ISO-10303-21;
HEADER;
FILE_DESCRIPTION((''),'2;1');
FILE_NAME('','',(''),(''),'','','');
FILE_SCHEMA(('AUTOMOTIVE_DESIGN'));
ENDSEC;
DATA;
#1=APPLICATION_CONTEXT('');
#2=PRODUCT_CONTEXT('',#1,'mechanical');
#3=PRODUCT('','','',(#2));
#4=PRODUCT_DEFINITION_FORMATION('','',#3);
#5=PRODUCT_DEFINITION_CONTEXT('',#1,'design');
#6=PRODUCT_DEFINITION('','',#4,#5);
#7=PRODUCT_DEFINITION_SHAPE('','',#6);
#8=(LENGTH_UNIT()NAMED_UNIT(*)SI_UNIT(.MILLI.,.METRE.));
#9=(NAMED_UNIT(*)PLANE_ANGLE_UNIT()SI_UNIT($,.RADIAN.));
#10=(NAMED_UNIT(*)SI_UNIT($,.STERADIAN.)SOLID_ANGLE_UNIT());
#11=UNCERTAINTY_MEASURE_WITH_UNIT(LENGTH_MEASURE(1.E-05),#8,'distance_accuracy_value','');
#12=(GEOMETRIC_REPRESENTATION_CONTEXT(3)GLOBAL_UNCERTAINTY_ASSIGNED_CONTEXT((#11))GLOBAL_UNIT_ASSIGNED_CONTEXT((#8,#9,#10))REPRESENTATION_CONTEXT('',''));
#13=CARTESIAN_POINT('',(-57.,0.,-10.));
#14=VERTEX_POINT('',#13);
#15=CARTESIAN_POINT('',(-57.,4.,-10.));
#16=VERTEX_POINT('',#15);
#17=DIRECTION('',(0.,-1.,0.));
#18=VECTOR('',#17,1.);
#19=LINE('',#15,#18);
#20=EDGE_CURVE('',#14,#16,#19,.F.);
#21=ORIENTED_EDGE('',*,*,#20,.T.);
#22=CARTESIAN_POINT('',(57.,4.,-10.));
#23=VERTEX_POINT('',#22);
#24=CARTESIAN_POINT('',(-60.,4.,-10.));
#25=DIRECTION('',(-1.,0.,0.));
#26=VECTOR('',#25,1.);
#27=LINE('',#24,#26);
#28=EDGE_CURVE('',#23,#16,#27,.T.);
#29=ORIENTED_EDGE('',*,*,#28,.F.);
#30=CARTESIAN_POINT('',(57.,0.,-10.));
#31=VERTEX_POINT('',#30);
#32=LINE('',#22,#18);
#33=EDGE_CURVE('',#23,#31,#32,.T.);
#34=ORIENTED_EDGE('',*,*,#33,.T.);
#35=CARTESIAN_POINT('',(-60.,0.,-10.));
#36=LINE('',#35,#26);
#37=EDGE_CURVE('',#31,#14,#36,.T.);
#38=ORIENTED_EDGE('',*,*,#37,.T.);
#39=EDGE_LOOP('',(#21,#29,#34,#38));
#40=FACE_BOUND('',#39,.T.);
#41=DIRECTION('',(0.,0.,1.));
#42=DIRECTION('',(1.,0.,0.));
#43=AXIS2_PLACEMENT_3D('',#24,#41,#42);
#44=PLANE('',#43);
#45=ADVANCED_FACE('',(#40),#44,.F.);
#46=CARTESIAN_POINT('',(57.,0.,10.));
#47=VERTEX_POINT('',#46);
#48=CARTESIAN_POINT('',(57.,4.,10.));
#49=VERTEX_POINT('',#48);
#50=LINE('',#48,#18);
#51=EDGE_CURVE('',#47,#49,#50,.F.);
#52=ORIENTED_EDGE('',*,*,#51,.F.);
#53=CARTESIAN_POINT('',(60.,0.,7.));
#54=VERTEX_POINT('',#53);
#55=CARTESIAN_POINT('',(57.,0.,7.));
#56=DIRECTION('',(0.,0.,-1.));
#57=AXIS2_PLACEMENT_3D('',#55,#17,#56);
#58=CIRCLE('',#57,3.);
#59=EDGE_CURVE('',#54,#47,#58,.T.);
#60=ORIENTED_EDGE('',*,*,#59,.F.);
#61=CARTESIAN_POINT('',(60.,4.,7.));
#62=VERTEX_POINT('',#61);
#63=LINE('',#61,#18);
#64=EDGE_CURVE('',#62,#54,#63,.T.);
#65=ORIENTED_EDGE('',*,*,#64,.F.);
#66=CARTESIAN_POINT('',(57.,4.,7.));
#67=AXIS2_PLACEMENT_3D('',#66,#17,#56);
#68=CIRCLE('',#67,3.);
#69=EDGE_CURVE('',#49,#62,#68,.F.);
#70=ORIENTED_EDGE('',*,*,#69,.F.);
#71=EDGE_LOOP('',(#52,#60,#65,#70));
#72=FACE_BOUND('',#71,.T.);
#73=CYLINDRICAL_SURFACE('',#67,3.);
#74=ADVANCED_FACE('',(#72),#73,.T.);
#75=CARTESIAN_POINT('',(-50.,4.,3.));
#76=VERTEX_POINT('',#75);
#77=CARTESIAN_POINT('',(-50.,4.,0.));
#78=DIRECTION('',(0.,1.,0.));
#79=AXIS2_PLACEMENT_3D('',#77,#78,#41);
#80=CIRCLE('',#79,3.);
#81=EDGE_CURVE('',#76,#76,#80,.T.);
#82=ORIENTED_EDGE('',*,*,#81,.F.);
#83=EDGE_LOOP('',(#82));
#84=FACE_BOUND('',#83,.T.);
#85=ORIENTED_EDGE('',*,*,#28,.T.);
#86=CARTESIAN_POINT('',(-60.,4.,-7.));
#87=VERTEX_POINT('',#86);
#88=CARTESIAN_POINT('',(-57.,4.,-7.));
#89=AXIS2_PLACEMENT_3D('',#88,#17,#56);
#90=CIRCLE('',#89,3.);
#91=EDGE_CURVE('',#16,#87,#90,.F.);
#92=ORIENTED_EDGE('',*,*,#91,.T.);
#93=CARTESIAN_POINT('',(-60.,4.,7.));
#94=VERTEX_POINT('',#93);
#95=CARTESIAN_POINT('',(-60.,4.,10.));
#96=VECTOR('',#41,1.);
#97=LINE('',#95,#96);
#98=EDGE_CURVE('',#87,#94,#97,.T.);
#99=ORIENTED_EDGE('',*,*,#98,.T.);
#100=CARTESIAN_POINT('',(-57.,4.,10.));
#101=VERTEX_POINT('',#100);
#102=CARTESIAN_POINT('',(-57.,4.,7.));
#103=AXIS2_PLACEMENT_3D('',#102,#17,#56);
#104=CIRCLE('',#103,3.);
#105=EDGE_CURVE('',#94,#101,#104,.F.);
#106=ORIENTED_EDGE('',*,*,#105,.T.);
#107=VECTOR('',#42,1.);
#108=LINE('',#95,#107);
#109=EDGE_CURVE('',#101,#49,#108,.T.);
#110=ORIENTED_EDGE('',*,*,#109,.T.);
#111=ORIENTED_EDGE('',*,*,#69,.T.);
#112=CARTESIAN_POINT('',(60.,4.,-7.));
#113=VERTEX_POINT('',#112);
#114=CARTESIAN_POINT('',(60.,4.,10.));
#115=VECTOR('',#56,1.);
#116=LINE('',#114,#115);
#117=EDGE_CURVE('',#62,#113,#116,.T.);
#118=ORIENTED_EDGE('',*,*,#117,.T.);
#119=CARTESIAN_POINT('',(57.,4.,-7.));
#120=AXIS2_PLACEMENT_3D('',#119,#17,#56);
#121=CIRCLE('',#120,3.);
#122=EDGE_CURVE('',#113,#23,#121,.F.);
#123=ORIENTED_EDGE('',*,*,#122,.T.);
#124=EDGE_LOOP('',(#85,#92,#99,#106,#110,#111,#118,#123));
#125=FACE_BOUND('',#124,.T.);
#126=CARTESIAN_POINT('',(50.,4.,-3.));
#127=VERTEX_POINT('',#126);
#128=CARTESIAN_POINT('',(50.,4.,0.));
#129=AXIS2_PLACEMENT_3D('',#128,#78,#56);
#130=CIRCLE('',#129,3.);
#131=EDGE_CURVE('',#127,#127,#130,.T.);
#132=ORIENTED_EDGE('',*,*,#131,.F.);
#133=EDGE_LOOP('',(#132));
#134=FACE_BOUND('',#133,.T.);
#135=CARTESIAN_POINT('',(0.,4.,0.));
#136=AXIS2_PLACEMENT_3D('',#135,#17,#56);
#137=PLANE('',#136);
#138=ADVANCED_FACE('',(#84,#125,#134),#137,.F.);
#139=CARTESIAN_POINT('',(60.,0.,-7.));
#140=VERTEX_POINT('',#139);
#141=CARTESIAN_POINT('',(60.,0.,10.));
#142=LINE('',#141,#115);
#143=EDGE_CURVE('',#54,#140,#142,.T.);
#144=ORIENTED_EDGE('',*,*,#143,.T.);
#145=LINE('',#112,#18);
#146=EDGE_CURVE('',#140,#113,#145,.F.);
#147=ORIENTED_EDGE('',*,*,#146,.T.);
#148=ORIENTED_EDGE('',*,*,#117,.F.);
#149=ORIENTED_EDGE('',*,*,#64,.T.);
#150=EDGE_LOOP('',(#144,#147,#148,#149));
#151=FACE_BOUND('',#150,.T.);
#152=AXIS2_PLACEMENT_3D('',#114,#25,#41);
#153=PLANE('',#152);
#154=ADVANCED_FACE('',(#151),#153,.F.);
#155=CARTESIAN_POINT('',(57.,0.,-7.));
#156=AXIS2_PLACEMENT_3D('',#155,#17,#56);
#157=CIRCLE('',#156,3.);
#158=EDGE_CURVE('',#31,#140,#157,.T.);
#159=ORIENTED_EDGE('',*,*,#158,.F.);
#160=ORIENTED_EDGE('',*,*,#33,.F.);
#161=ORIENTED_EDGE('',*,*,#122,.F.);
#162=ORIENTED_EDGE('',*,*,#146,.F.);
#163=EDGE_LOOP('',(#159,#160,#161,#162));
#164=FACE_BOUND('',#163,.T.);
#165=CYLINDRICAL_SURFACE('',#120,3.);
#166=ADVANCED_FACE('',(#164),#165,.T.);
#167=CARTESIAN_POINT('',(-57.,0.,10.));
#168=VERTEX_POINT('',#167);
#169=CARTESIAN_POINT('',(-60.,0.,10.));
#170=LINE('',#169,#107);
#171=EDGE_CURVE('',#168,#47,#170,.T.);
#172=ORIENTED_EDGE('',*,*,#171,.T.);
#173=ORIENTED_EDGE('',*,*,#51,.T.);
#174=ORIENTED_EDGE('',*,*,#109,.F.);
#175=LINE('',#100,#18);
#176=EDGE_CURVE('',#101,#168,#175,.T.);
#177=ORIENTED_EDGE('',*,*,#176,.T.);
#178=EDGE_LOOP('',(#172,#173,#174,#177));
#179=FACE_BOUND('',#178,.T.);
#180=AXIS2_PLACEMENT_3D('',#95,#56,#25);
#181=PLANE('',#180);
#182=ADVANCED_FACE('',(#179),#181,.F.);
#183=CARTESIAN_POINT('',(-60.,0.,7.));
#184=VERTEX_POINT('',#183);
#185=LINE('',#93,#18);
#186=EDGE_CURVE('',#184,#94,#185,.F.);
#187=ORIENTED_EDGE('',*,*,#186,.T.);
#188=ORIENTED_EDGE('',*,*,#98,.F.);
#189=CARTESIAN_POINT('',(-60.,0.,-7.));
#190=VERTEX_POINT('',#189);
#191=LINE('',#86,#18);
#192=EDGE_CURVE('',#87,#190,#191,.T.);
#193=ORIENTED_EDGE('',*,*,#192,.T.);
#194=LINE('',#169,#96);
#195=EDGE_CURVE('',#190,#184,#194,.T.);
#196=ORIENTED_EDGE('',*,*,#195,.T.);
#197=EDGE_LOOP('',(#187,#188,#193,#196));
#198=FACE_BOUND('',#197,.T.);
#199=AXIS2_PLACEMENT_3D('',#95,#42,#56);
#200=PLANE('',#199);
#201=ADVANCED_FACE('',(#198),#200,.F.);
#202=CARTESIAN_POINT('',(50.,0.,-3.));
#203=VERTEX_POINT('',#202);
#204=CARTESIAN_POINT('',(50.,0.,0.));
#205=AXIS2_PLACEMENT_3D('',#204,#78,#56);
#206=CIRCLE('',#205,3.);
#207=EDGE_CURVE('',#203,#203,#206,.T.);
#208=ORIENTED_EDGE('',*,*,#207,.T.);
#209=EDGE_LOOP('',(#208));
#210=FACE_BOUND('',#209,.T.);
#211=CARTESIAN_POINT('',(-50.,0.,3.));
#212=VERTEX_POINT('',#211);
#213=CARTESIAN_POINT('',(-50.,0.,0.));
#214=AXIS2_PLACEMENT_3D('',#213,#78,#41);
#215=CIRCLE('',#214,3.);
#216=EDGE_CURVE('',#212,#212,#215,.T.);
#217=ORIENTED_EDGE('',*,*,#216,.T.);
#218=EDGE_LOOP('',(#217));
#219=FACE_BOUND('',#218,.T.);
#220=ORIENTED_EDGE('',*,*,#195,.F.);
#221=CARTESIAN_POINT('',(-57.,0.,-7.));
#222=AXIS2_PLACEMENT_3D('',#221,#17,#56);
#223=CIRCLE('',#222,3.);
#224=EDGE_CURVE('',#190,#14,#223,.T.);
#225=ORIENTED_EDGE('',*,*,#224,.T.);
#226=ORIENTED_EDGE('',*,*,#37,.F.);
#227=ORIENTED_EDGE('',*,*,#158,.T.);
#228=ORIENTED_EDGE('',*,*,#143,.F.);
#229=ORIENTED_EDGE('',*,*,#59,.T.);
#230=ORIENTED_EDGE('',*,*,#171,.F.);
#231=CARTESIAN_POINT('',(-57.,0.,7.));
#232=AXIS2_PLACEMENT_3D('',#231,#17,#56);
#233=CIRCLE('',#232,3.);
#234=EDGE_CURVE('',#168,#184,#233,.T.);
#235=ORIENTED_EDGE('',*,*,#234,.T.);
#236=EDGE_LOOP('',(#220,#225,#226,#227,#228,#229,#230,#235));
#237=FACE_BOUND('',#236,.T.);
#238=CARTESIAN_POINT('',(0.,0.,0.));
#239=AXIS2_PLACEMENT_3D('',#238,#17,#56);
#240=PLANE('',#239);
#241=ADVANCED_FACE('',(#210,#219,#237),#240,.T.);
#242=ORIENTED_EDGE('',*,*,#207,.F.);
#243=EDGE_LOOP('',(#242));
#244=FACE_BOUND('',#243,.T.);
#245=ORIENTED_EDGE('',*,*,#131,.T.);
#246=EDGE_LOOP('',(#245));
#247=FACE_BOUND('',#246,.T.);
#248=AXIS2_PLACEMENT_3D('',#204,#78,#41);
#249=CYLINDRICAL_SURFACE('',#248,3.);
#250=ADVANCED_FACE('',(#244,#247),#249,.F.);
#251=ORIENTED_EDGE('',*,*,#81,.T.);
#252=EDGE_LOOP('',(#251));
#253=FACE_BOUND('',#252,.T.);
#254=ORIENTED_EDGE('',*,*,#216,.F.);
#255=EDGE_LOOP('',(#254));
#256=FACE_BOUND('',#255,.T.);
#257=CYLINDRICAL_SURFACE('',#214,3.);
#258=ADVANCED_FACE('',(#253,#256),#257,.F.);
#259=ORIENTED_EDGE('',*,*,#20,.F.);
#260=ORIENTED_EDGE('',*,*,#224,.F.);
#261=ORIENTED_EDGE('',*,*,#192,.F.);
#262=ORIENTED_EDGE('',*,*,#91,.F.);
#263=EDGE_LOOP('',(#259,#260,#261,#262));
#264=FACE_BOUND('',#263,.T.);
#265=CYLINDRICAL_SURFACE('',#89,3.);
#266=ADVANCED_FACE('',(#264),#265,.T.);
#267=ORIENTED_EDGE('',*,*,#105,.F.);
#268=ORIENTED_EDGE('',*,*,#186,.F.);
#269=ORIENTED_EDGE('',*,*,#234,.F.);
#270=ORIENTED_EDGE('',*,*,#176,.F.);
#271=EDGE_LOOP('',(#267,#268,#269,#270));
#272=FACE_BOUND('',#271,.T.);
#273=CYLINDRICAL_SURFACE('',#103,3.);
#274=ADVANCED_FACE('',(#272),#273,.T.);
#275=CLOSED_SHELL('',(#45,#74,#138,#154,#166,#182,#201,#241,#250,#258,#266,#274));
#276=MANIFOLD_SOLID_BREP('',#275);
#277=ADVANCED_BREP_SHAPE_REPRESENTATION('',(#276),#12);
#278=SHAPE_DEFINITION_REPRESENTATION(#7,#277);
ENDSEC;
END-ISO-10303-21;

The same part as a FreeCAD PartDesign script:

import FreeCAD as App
import Part
import Sketcher

V = App.Vector
Q = App.Units.Quantity


def edges_at(feature, points):
    """Names of the edges that pass closest to the given points."""
    edges = feature.Shape.Edges
    near = lambda p: min(range(len(edges)), key=lambda i: edges[i].distToShape(Part.Vertex(*p))[0])
    return sorted({f"Edge{near(p) + 1}" for p in points})


def add_polygon(sketch, points):
    """Adds a closed chain of lines whose ends are joined by coincident constraints."""
    first, n = sketch.GeometryCount, len(points)
    for a, b in zip(points, points[1:] + points[:1]):
        sketch.addGeometry(Part.LineSegment(App.Vector(*a, 0), App.Vector(*b, 0)), False)
    for i in range(n):
        sketch.addConstraint(Sketcher.Constraint("Coincident", first + i, 2, first + (i + 1) % n, 1))

doc = App.newDocument("Part")
params = doc.addObject("Spreadsheet::Sheet", "Params")
for row, (alias, value) in enumerate([
    ("sketch1_width", "120 mm"),
    ("sketch1_height", "20 mm"),
    ("pad1_length", "4 mm"),
    ("sketch2_diameter", "6 mm"),
    ("pocket1_length", "4 mm"),
    ("fillet_radius", "3 mm"),
], start=1):
    params.set(f"A{row}", alias)
    params.set(f"B{row}", "=" + value)
    params.setAlias(f"B{row}", alias)

body = doc.addObject("PartDesign::Body", "Body")

sketch1 = body.newObject("Sketcher::SketchObject", "Sketch")
sketch1.AttachmentSupport = (doc.getObject("XZ_Plane"), [""])
sketch1.MapMode = "FlatFace"
add_polygon(sketch1, [(-60, -10), (-60, 10), (60, 10), (60, -10)])
sketch1.addConstraint(Sketcher.Constraint("Vertical", 0))
sketch1.addConstraint(Sketcher.Constraint("Horizontal", 1))
sketch1.addConstraint(Sketcher.Constraint("Vertical", 2))
sketch1.addConstraint(Sketcher.Constraint("Horizontal", 3))
sketch1.addConstraint(Sketcher.Constraint("Symmetric", 0, 2, 2, 2, -1, 1))
sketch1.addConstraint(Sketcher.Constraint("DistanceX", 1, 1, 1, 2, Q("120 mm")))
sketch1.addConstraint(Sketcher.Constraint("DistanceY", 0, 1, 0, 2, Q("20 mm")))
sketch1.setExpression("Constraints[9]", "Params.sketch1_width")
sketch1.setExpression("Constraints[10]", "Params.sketch1_height")
pad1 = body.newObject("PartDesign::Pad", "Pad")
pad1.Profile = sketch1
pad1.setExpression("Length", "Params.pad1_length")
pad1.Reversed = True

sketch2 = body.newObject("Sketcher::SketchObject", "Sketch001")
sketch2.AttachmentSupport = (doc.getObject("XZ_Plane"), [""])
sketch2.MapMode = "FlatFace"
sketch2.AttachmentOffset = App.Placement(V(0, 0, -4), App.Rotation())
sketch2.addGeometry(Part.Circle(V(-50, 0, 0), V(0, 0, 1), 3), False)
sketch2.addGeometry(Part.Circle(V(50, 0, 0), V(0, 0, 1), 3), False)
sketch2.addConstraint(Sketcher.Constraint("Equal", 0, 1))
sketch2.addConstraint(Sketcher.Constraint("Symmetric", 0, 3, 1, 3, -1, 1))
sketch2.addConstraint(Sketcher.Constraint("PointOnObject", 0, 3, -1))
sketch2.addConstraint(Sketcher.Constraint("Diameter", 0, Q("6 mm")))
sketch2.addConstraint(Sketcher.Constraint("DistanceX", 0, 3, -1, 1, Q("50 mm")))
sketch2.setExpression("Constraints[3]", "Params.sketch2_diameter")
pocket1 = body.newObject("PartDesign::Pocket", "Pocket")
pocket1.Profile = sketch2
pocket1.setExpression("Length", "Params.pocket1_length")
pocket1.Reversed = True
doc.recompute()

fillet = body.newObject("PartDesign::Fillet", "Fillet")
fillet.Base = (pocket1, edges_at(pocket1, [
    (60, 2, 10),
    (-60, 2, 10),
    (-60, 2, -10),
    (60, 2, -10),
]))
fillet.setExpression("Radius", "Params.fillet_radius")

doc.recompute()
